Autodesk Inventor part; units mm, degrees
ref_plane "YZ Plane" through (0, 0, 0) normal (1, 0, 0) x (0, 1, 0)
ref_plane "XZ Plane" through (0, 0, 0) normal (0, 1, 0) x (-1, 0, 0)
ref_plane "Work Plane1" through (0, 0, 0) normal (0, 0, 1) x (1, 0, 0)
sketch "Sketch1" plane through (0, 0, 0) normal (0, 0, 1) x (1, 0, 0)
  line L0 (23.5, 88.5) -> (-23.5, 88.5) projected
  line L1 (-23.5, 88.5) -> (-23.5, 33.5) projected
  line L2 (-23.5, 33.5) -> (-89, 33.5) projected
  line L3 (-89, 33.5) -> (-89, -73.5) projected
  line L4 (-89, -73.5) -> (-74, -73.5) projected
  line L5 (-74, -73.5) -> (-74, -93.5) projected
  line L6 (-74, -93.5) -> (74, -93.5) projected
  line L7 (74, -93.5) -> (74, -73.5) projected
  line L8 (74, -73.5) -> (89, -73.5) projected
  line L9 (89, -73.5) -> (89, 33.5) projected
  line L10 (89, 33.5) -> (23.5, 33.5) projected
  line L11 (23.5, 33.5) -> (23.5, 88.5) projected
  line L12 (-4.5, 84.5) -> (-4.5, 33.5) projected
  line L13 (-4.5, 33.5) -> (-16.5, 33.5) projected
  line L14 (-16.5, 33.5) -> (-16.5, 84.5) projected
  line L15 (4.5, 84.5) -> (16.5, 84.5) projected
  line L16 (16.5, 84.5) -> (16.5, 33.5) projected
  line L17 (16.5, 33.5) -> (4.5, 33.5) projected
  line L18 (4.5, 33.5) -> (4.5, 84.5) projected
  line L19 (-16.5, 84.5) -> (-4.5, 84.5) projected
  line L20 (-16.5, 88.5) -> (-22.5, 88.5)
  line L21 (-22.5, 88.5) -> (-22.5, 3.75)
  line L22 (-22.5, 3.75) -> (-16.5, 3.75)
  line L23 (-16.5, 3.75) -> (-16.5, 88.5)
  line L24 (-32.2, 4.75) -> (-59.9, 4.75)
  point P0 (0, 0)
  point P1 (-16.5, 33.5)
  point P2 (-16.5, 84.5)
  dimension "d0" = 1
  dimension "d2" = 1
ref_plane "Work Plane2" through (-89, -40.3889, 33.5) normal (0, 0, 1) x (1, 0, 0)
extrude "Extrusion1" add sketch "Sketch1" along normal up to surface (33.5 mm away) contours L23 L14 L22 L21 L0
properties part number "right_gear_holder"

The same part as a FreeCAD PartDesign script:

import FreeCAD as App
import Part
import Sketcher
from FreeCAD import Vector
Q = App.Units.Quantity


def add_polygon(sketch, points):
    """Adds a closed chain of lines whose ends are joined by coincident constraints."""
    first, n = sketch.GeometryCount, len(points)
    for a, b in zip(points, points[1:] + points[:1]):
        sketch.addGeometry(Part.LineSegment(App.Vector(*a, 0), App.Vector(*b, 0)), False)
    for i in range(n):
        sketch.addConstraint(Sketcher.Constraint("Coincident", first + i, 2, first + (i + 1) % n, 1))

doc = App.newDocument("Part")
body = doc.addObject("PartDesign::Body", "Body")

sketch1 = body.newObject("Sketcher::SketchObject", "Sketch")
sketch1.AttachmentSupport = (doc.getObject("XY_Plane"), [""])
sketch1.MapMode = "FlatFace"
add_polygon(sketch1, [(-16.5, 3.75), (-16.5, 88.5), (-22.5, 88.5), (-22.5, 3.75)])
sketch1.addConstraint(Sketcher.Constraint("Vertical", 0))
sketch1.addConstraint(Sketcher.Constraint("Horizontal", 1))
sketch1.addConstraint(Sketcher.Constraint("Vertical", 2))
sketch1.addConstraint(Sketcher.Constraint("Horizontal", 3))
sketch1.addConstraint(Sketcher.Constraint("DistanceX", 1, 2, 1, 1, Q("6 mm")))
sketch1.addConstraint(Sketcher.Constraint("DistanceY", 0, 1, 0, 2, Q("84.75 mm")))
sketch1.addConstraint(Sketcher.Constraint("DistanceX", 0, 2, -1, 1, Q("16.5 mm")))
sketch1.addConstraint(Sketcher.Constraint("DistanceY", -1, 1, 0, 2, Q("88.5 mm")))
pad1 = body.newObject("PartDesign::Pad", "Pad")
pad1.Profile = sketch1
pad1.Length = 33.5

doc.recompute()
